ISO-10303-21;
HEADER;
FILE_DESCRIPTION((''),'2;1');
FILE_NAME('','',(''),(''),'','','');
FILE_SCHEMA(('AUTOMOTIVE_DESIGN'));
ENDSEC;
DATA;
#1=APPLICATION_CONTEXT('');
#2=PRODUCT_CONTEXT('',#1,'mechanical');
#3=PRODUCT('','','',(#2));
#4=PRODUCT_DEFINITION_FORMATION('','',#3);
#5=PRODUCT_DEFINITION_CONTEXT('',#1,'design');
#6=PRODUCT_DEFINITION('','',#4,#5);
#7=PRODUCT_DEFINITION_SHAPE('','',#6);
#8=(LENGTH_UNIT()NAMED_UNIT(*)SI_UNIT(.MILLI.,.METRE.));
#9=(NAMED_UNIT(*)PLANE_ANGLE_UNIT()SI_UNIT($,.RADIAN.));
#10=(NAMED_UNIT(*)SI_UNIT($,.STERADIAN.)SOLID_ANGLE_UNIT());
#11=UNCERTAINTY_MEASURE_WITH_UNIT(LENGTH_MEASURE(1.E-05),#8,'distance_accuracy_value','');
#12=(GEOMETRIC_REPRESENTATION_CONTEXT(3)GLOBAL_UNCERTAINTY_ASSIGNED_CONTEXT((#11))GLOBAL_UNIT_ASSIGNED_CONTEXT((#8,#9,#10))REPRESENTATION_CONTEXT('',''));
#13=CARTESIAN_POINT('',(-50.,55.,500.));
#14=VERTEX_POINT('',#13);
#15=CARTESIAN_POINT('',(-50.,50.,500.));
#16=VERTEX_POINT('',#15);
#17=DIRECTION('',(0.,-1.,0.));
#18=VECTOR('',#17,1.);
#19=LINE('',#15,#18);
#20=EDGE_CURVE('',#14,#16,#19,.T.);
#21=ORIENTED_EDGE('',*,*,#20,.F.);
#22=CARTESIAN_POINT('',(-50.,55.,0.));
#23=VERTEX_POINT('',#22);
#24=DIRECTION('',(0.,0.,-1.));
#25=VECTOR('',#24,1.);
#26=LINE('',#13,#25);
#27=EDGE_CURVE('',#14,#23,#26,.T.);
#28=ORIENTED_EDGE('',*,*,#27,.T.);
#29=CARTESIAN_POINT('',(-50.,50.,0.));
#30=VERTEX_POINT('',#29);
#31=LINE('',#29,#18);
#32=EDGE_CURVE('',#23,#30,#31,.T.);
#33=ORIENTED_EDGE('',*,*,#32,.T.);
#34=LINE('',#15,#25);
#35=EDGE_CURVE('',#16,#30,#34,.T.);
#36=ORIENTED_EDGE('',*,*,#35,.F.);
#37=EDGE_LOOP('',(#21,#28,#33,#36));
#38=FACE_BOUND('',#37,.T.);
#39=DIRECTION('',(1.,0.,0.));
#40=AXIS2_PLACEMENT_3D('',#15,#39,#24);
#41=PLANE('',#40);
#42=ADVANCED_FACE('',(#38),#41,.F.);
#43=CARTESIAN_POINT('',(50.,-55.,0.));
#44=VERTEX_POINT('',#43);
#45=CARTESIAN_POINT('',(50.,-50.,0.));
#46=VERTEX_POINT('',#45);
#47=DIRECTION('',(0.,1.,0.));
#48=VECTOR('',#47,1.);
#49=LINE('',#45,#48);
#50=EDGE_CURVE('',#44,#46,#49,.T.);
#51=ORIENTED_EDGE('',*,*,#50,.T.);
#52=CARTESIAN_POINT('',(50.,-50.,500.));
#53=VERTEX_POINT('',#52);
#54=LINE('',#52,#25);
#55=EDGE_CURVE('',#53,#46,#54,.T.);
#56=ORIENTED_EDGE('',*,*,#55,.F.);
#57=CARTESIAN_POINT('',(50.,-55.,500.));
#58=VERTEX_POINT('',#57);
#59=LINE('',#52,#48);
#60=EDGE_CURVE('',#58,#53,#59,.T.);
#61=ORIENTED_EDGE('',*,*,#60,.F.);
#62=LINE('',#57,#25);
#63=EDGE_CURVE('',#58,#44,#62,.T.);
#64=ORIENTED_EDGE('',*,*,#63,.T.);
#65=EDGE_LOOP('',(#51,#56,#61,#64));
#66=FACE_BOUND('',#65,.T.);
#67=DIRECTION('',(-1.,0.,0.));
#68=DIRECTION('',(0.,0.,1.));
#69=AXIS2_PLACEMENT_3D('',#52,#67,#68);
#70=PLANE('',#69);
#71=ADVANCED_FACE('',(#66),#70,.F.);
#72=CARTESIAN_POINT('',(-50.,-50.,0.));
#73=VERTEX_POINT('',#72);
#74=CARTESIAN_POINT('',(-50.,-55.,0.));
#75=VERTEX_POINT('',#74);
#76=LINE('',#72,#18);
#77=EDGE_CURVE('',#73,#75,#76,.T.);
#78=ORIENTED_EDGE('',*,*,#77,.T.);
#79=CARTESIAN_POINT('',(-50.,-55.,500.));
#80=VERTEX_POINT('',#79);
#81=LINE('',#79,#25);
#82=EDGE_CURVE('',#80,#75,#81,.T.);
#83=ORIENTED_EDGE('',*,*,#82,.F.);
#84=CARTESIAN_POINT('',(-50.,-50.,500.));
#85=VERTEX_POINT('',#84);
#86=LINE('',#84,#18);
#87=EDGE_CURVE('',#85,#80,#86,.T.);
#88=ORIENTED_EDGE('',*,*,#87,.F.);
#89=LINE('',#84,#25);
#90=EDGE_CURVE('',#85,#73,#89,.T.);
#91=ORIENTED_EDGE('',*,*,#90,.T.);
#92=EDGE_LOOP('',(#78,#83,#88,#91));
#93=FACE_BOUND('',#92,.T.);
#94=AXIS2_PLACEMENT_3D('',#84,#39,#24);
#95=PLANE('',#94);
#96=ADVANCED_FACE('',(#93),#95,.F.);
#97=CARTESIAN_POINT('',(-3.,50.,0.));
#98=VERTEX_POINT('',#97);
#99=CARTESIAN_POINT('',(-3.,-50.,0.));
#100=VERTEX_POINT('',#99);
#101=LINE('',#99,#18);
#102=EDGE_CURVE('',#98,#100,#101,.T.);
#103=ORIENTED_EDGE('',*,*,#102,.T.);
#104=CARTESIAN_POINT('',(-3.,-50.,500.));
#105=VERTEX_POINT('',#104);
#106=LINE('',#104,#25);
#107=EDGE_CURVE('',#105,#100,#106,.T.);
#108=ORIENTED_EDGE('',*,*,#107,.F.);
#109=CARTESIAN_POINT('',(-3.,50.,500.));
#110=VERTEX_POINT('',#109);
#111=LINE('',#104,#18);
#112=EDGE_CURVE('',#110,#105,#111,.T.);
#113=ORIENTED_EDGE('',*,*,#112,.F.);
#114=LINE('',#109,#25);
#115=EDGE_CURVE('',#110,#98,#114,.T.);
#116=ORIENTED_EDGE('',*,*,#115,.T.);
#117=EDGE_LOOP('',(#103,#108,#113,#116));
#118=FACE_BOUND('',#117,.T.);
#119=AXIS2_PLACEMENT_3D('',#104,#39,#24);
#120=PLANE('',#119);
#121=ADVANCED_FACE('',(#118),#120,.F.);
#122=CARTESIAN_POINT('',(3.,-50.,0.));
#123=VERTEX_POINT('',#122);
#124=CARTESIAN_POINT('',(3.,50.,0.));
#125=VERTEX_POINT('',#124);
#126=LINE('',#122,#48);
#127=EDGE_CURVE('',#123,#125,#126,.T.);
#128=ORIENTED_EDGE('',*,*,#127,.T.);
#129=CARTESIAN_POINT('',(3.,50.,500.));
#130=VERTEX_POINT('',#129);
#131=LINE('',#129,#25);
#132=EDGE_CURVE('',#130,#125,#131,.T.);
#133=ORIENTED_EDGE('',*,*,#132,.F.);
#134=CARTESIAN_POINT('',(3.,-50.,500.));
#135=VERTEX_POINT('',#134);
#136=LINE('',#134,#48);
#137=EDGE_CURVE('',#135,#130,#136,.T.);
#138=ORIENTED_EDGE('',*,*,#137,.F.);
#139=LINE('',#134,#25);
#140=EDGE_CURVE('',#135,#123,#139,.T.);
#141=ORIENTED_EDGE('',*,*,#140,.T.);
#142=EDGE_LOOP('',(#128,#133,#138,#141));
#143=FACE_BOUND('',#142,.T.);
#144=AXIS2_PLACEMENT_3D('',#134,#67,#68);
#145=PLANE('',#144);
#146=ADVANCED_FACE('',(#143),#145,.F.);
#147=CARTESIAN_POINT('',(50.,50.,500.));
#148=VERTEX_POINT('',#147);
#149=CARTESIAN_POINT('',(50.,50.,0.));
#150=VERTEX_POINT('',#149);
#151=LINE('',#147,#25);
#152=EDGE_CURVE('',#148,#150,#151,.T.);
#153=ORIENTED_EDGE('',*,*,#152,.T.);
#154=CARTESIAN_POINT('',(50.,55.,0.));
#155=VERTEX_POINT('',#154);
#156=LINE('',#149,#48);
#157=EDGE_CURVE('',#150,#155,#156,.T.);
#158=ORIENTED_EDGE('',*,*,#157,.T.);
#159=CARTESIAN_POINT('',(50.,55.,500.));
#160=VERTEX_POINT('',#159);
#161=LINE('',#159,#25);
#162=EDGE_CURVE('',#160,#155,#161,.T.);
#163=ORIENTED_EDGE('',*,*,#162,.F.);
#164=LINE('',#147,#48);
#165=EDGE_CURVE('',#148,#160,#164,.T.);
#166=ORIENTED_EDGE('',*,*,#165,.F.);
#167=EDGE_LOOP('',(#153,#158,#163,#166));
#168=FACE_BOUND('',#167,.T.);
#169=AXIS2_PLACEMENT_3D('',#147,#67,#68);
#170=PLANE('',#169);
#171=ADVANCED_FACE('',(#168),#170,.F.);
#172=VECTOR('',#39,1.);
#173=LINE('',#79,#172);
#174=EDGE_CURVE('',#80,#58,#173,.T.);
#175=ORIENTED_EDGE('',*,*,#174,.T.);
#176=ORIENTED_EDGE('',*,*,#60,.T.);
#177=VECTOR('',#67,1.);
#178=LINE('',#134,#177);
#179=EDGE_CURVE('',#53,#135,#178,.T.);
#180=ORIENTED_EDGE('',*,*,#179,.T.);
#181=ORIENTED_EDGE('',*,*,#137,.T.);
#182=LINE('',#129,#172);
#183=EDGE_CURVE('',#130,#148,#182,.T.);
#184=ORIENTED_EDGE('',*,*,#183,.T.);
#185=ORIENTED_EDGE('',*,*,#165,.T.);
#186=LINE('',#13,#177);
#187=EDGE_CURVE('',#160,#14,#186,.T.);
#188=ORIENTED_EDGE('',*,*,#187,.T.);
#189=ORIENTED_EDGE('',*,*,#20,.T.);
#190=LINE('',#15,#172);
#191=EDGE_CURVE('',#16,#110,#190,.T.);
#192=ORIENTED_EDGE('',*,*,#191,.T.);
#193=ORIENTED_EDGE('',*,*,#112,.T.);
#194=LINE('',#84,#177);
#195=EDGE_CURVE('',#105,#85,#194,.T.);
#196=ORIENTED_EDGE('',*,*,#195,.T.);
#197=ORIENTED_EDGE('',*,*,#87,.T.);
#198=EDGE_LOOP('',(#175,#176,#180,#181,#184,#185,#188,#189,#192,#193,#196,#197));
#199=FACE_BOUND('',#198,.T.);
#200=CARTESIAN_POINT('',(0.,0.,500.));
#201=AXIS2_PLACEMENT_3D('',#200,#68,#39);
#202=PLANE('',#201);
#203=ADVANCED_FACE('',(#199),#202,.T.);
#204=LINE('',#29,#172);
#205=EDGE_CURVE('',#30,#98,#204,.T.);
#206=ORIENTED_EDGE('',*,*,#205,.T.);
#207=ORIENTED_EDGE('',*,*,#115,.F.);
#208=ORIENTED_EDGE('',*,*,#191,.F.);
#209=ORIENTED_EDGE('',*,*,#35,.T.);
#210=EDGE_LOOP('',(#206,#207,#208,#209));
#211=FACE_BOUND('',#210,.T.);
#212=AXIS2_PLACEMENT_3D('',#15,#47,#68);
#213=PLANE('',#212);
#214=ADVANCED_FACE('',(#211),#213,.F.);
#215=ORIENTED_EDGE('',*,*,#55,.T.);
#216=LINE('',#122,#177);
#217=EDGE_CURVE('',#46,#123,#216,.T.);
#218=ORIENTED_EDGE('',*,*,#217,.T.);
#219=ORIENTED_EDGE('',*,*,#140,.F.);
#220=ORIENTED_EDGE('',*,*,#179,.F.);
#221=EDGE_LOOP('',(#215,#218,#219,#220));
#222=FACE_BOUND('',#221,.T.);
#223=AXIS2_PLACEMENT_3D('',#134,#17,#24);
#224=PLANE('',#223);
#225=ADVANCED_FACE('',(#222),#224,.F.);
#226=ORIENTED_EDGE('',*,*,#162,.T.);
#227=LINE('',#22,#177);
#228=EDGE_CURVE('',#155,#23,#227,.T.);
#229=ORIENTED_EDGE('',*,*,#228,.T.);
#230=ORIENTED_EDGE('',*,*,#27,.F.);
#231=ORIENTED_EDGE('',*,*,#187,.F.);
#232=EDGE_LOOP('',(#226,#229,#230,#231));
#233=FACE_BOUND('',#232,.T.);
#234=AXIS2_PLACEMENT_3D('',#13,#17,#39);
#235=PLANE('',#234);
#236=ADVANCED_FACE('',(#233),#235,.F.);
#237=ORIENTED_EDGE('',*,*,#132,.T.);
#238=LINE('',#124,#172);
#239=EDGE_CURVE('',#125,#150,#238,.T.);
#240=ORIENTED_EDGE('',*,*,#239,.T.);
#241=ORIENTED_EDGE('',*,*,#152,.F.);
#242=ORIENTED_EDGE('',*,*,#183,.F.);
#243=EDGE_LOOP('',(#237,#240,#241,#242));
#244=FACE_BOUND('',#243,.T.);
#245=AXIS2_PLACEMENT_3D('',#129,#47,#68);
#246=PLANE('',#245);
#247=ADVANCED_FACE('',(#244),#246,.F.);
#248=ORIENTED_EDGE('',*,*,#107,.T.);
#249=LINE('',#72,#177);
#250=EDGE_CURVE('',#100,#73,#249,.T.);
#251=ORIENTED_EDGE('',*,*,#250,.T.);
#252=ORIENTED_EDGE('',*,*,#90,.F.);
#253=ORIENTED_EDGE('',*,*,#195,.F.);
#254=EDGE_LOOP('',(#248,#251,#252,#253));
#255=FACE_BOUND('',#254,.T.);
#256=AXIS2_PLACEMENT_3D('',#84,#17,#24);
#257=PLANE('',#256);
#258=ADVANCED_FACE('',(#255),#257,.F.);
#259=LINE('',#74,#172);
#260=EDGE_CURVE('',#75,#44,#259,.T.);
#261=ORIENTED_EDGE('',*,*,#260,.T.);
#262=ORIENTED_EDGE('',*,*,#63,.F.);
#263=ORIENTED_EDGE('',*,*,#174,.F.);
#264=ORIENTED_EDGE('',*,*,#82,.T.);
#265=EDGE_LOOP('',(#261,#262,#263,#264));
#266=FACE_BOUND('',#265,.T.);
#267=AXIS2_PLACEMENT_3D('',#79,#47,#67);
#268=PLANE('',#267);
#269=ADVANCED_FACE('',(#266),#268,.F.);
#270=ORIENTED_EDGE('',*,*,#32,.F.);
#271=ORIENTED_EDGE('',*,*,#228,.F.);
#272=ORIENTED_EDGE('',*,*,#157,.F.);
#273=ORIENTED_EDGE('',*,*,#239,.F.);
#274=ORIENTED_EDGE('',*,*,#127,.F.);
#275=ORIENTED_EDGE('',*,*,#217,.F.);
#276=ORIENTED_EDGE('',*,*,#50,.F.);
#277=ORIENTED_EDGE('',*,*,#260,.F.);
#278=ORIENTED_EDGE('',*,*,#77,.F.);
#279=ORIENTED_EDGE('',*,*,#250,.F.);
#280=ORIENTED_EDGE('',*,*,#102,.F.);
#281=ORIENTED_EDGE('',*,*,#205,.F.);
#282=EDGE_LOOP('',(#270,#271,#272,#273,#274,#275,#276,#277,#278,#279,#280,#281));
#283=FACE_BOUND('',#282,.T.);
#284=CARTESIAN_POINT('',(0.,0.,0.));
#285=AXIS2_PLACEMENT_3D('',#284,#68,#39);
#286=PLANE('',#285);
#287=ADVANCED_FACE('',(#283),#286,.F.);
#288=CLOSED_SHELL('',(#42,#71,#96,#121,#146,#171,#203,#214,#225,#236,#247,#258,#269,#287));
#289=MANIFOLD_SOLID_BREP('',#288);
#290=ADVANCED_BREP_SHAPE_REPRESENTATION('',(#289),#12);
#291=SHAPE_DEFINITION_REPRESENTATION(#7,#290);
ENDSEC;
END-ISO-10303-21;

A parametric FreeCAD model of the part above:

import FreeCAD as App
import Part
import Sketcher
Q = App.Units.Quantity

doc = App.newDocument("Part")
body = doc.addObject("PartDesign::Body", "Body")

# Sketch on XY plane
sketch1 = body.newObject("Sketcher::SketchObject", "Sketch")
sketch1.AttachmentSupport = (doc.getObject("XY_Plane"), [""])
sketch1.MapMode = "FlatFace"
sketch1.addGeometry(Part.LineSegment(App.Vector(3, -50, 0), App.Vector(3, 50, 0)), False)
sketch1.addGeometry(Part.LineSegment(App.Vector(3, 50, 0), App.Vector(50, 50, 0)), False)
sketch1.addGeometry(Part.LineSegment(App.Vector(50, 50, 0), App.Vector(50, 55, 0)), False)
sketch1.addGeometry(Part.LineSegment(App.Vector(50, 55, 0), App.Vector(-50, 55, 0)), False)
sketch1.addGeometry(Part.LineSegment(App.Vector(-50, 55, 0), App.Vector(-50, 50, 0)), False)
sketch1.addGeometry(Part.LineSegment(App.Vector(-50, 50, 0), App.Vector(-3, 50, 0)), False)
sketch1.addGeometry(Part.LineSegment(App.Vector(-3, 50, 0), App.Vector(-3, -50, 0)), False)
sketch1.addGeometry(Part.LineSegment(App.Vector(-3, -50, 0), App.Vector(-50, -50, 0)), False)
sketch1.addGeometry(Part.LineSegment(App.Vector(-50, -50, 0), App.Vector(-50, -55, 0)), False)
sketch1.addGeometry(Part.LineSegment(App.Vector(-50, -55, 0), App.Vector(50, -55, 0)), False)
sketch1.addGeometry(Part.LineSegment(App.Vector(50, -55, 0), App.Vector(50, -50, 0)), False)
sketch1.addGeometry(Part.LineSegment(App.Vector(50, -50, 0), App.Vector(3, -50, 0)), False)
sketch1.addConstraint(Sketcher.Constraint("Coincident", 0, 2, 1, 1))
sketch1.addConstraint(Sketcher.Constraint("Coincident", 1, 2, 2, 1))
sketch1.addConstraint(Sketcher.Constraint("Coincident", 2, 2, 3, 1))
sketch1.addConstraint(Sketcher.Constraint("Coincident", 3, 2, 4, 1))
sketch1.addConstraint(Sketcher.Constraint("Coincident", 4, 2, 5, 1))
sketch1.addConstraint(Sketcher.Constraint("Coincident", 5, 2, 6, 1))
sketch1.addConstraint(Sketcher.Constraint("Coincident", 6, 2, 7, 1))
sketch1.addConstraint(Sketcher.Constraint("Coincident", 7, 2, 8, 1))
sketch1.addConstraint(Sketcher.Constraint("Coincident", 8, 2, 9, 1))
sketch1.addConstraint(Sketcher.Constraint("Coincident", 9, 2, 10, 1))
sketch1.addConstraint(Sketcher.Constraint("Coincident", 10, 2, 11, 1))
sketch1.addConstraint(Sketcher.Constraint("Coincident", 11, 2, 0, 1))
sketch1.addConstraint(Sketcher.Constraint("Vertical", 0))
sketch1.addConstraint(Sketcher.Constraint("Horizontal", 1))
sketch1.addConstraint(Sketcher.Constraint("Vertical", 2))
sketch1.addConstraint(Sketcher.Constraint("Horizontal", 3))
sketch1.addConstraint(Sketcher.Constraint("Vertical", 4))
sketch1.addConstraint(Sketcher.Constraint("Horizontal", 5))
sketch1.addConstraint(Sketcher.Constraint("Vertical", 6))
sketch1.addConstraint(Sketcher.Constraint("Horizontal", 7))
sketch1.addConstraint(Sketcher.Constraint("Vertical", 8))
sketch1.addConstraint(Sketcher.Constraint("Horizontal", 9))
sketch1.addConstraint(Sketcher.Constraint("Vertical", 10))
sketch1.addConstraint(Sketcher.Constraint("Horizontal", 11))
sketch1.addConstraint(Sketcher.Constraint("Symmetric", 0, 2, 6, 2, -1, 1))
sketch1.addConstraint(Sketcher.Constraint("Symmetric", 2, 2, 8, 2, -1, 1))
sketch1.addConstraint(Sketcher.Constraint("Symmetric", 4, 2, 10, 2, -1, 1))
sketch1.addConstraint(Sketcher.Constraint("Symmetric", 1, 2, 4, 2, -2))
sketch1.addConstraint(Sketcher.Constraint("Equal", 9, 0))
sketch1.addConstraint(Sketcher.Constraint("DistanceX", 1, 1, 1, 2, Q("47 mm")))
sketch1.addConstraint(Sketcher.Constraint("DistanceX", 3, 2, 3, 1, Q("100 mm")))
sketch1.addConstraint(Sketcher.Constraint("DistanceY", 2, 1, 2, 2, Q("5 mm")))
pad1 = body.newObject("PartDesign::Pad", "Pad")
pad1.Profile = sketch1
pad1.Length = 500

doc.recompute()
